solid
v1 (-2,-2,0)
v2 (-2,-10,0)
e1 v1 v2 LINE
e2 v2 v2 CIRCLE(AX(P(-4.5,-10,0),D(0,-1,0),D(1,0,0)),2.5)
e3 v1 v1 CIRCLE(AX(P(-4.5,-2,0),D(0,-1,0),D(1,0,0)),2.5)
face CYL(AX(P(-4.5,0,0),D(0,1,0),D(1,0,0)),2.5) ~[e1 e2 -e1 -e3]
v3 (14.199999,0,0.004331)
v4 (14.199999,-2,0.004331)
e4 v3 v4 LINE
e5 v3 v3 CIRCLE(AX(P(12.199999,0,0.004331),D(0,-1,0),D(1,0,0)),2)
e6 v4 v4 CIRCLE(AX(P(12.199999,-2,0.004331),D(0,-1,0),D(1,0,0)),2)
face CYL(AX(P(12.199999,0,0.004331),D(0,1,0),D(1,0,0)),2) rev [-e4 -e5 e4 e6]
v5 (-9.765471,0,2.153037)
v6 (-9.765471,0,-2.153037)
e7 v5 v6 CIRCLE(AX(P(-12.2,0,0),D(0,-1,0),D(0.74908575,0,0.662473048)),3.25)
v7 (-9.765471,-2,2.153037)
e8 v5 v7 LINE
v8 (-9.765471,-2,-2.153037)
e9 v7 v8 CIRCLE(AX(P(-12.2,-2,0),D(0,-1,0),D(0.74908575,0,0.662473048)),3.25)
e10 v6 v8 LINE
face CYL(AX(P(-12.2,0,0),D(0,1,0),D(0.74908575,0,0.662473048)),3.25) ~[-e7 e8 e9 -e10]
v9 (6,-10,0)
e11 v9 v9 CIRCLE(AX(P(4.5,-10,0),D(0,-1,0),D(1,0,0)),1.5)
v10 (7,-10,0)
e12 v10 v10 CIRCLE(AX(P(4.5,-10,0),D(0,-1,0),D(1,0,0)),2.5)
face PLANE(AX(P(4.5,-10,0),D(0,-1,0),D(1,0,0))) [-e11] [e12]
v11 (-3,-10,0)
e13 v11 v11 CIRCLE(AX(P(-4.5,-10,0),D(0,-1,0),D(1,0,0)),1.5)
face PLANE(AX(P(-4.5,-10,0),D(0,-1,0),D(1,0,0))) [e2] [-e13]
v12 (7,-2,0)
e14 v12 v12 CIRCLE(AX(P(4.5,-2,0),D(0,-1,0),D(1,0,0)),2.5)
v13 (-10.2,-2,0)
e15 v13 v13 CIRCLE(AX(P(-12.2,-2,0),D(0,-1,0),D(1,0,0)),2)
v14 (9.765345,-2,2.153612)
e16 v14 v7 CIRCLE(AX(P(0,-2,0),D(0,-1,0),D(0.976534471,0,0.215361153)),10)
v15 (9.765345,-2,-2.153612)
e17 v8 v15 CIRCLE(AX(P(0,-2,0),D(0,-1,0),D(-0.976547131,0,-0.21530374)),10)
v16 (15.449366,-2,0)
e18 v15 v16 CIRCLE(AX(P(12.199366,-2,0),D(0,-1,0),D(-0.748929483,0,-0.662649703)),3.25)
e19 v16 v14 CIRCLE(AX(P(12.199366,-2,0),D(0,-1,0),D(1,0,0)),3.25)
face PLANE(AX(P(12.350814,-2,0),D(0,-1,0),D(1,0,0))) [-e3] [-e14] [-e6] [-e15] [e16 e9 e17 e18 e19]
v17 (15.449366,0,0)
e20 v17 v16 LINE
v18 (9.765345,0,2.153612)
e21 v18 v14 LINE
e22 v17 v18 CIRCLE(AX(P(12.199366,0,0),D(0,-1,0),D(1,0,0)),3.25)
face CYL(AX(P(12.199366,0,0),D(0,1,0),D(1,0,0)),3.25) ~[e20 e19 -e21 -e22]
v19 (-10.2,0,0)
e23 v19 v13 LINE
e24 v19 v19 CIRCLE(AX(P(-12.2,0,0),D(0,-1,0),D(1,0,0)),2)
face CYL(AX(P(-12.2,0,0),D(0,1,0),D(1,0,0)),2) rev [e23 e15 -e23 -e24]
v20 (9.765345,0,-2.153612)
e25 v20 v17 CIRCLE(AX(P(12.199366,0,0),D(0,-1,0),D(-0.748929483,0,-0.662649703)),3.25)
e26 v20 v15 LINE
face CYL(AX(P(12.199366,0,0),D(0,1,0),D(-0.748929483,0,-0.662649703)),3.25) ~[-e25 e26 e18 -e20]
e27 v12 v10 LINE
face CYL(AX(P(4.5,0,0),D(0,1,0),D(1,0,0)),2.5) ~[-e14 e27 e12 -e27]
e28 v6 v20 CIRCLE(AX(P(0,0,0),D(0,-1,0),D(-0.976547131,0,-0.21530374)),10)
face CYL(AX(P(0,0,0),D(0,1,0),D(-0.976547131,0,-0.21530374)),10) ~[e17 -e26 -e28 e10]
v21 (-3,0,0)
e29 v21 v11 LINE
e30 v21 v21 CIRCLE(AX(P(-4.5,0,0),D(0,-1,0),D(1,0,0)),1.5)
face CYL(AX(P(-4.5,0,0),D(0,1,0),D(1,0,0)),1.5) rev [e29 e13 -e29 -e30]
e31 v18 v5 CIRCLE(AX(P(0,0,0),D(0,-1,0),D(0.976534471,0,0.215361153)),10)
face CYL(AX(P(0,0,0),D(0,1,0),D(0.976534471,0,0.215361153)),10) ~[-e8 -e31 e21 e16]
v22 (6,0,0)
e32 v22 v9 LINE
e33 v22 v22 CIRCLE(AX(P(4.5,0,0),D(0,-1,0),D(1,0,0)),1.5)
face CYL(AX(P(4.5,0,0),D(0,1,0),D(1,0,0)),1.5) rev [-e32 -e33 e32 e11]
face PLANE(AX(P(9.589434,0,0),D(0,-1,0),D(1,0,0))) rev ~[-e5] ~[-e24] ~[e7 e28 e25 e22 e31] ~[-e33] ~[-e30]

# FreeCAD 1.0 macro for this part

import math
import FreeCAD as App
import Part
import Sketcher

doc = App.newDocument("Part")
body = doc.addObject("PartDesign::Body", "Body")
body.AllowCompound = True

# Sketch on XZ plane
sketch1 = doc.addObject("Sketcher::SketchObject", "Sketch")
body.addObject(sketch1)
sketch1.AttachmentSupport = (doc.XZ_Plane, [""])
sketch1.MapMode = "FlatFace"
sketch1.addGeometry(Part.ArcOfCircle(Part.Circle(App.Vector(12.2, 0, 0), App.Vector(0, 0, 1), 3.2), math.radians(138), math.radians(222)), False)
sketch1.addGeometry(Part.ArcOfCircle(Part.Circle(App.Vector(0, 0, 0), App.Vector(0, 0, 1), 10), math.radians(12), math.radians(168)), False)
sketch1.addGeometry(Part.ArcOfCircle(Part.Circle(App.Vector(-12.2, 0, 0), App.Vector(0, 0, 1), 3.2), math.radians(0), math.radians(41)), False)
sketch1.addGeometry(Part.ArcOfCircle(Part.Circle(App.Vector(-12.2, 0, 0), App.Vector(0, 0, 1), 3.2), math.radians(-41), math.radians(0)), False)
sketch1.addGeometry(Part.ArcOfCircle(Part.Circle(App.Vector(0, 0, 0), App.Vector(0, 0, 1), 10), math.radians(-168), math.radians(-12)), False)
sketch1.addGeometry(Part.Circle(App.Vector(-4.5, 0, 0), App.Vector(0, 0, 1), 2.5), False)
sketch1.addGeometry(Part.Circle(App.Vector(4.5, 0, 0), App.Vector(0, 0, 1), 2.5), False)
sketch1.addConstraint(Sketcher.Constraint("Coincident", 0, 1, 1, 1))
sketch1.addConstraint(Sketcher.Constraint("Coincident", 1, 2, 2, 2))
sketch1.addConstraint(Sketcher.Constraint("Tangent", 2, 1, 3, 2))
sketch1.addConstraint(Sketcher.Constraint("Coincident", 3, 1, 4, 1))
sketch1.addConstraint(Sketcher.Constraint("Coincident", 4, 2, 0, 2))
sketch1.addConstraint(Sketcher.Constraint("Coincident", 1, 3, -1, 1))
sketch1.addConstraint(Sketcher.Constraint("Coincident", 4, 3, -1, 1))
sketch1.addConstraint(Sketcher.Constraint("Equal", 0, 2))
sketch1.addConstraint(Sketcher.Constraint("Equal", 2, 3))
sketch1.addConstraint(Sketcher.Constraint("Equal", 1, 4))
sketch1.addConstraint(Sketcher.Constraint("Equal", 5, 6))
sketch1.addConstraint(Sketcher.Constraint("Symmetric", 5, 3, 6, 3, -1, 1))
sketch1.addConstraint(Sketcher.Constraint("PointOnObject", 0, 3, -1))
sketch1.addConstraint(Sketcher.Constraint("PointOnObject", 2, 3, -1))
sketch1.addConstraint(Sketcher.Constraint("PointOnObject", 5, 3, -1))
sketch1.addConstraint(Sketcher.Constraint("PointOnObject", 2, 1, -1))
sketch1.addConstraint(Sketcher.Constraint("Diameter", 5, 5.0))
sketch1.addConstraint(Sketcher.Constraint("Radius", 1, 10.0))
sketch1.addConstraint(Sketcher.Constraint("Radius", 0, 3.25))
sketch1.addConstraint(Sketcher.Constraint("DistanceX", 5, 3, 6, 3, 9.0))
sketch1.addConstraint(Sketcher.Constraint("DistanceX", 2, 3, -1, 1, 12.2))
sketch1.addConstraint(Sketcher.Constraint("DistanceY", -1, 1, 0, 1, 2.153612))
pad1 = doc.addObject("PartDesign::Pad", "Pad")
body.addObject(pad1)
pad1.Profile = sketch1
pad1.Length = 2

# Sketch on XZ plane
sketch2 = doc.addObject("Sketcher::SketchObject", "Sketch001")
body.addObject(sketch2)
sketch2.AttachmentSupport = (doc.XZ_Plane, [""])
sketch2.MapMode = "FlatFace"
sketch2.addGeometry(Part.Circle(App.Vector(-4.5, 0, 0), App.Vector(0, 0, 1), 2.5), False)
sketch2.addGeometry(Part.Circle(App.Vector(-4.5, 0, 0), App.Vector(0, 0, 1), 1.5), False)
sketch2.addGeometry(Part.Circle(App.Vector(4.5, 0, 0), App.Vector(0, 0, 1), 2.5), False)
sketch2.addGeometry(Part.Circle(App.Vector(4.5, 0, 0), App.Vector(0, 0, 1), 1.5), False)
sketch2.addConstraint(Sketcher.Constraint("Coincident", 1, 3, 0, 3))
sketch2.addConstraint(Sketcher.Constraint("Coincident", 3, 3, 2, 3))
sketch2.addConstraint(Sketcher.Constraint("Equal", 0, 2))
sketch2.addConstraint(Sketcher.Constraint("Equal", 1, 3))
sketch2.addConstraint(Sketcher.Constraint("Symmetric", 0, 3, 2, 3, -1, 1))
sketch2.addConstraint(Sketcher.Constraint("PointOnObject", 0, 3, -1))
sketch2.addConstraint(Sketcher.Constraint("Diameter", 0, 5.0))
sketch2.addConstraint(Sketcher.Constraint("Diameter", 1, 3.0))
sketch2.addConstraint(Sketcher.Constraint("DistanceX", 0, 3, 2, 3, 9.0))
pad2 = doc.addObject("PartDesign::Pad", "Pad001")
body.addObject(pad2)
pad2.Profile = sketch2
pad2.Length = 10

# Sketch on XZ plane
sketch3 = doc.addObject("Sketcher::SketchObject", "Sketch002")
body.addObject(sketch3)
sketch3.AttachmentSupport = (doc.XZ_Plane, [""])
sketch3.MapMode = "FlatFace"
sketch3.addGeometry(Part.ArcOfCircle(Part.Circle(App.Vector(12.2, 0, 0), App.Vector(0, 0, 1), 3.2), math.radians(138), math.radians(222)), False)
sketch3.addGeometry(Part.ArcOfCircle(Part.Circle(App.Vector(0, 0, 0), App.Vector(0, 0, 1), 10), math.radians(12), math.radians(168)), False)
sketch3.addGeometry(Part.ArcOfCircle(Part.Circle(App.Vector(-12.2, 0, 0), App.Vector(0, 0, 1), 3.2), math.radians(0), math.radians(41)), False)
sketch3.addGeometry(Part.ArcOfCircle(Part.Circle(App.Vector(-12.2, 0, 0), App.Vector(0, 0, 1), 3.2), math.radians(-41), math.radians(0)), False)
sketch3.addGeometry(Part.ArcOfCircle(Part.Circle(App.Vector(0, 0, 0), App.Vector(0, 0, 1), 10), math.radians(-168), math.radians(-12)), False)
sketch3.addGeometry(Part.Circle(App.Vector(-4.5, 0, 0), App.Vector(0, 0, 1), 2.5), False)
sketch3.addGeometry(Part.Circle(App.Vector(4.5, 0, 0), App.Vector(0, 0, 1), 2.5), False)
sketch3.addConstraint(Sketcher.Constraint("Coincident", 0, 1, 1, 1))
sketch3.addConstraint(Sketcher.Constraint("Coincident", 1, 2, 2, 2))
sketch3.addConstraint(Sketcher.Constraint("Tangent", 2, 1, 3, 2))
sketch3.addConstraint(Sketcher.Constraint("Coincident", 3, 1, 4, 1))
sketch3.addConstraint(Sketcher.Constraint("Coincident", 4, 2, 0, 2))
sketch3.addConstraint(Sketcher.Constraint("Coincident", 1, 3, -1, 1))
sketch3.addConstraint(Sketcher.Constraint("Coincident", 4, 3, -1, 1))
sketch3.addConstraint(Sketcher.Constraint("Equal", 0, 2))
sketch3.addConstraint(Sketcher.Constraint("Equal", 2, 3))
sketch3.addConstraint(Sketcher.Constraint("Equal", 1, 4))
sketch3.addConstraint(Sketcher.Constraint("Equal", 5, 6))
sketch3.addConstraint(Sketcher.Constraint("Symmetric", 5, 3, 6, 3, -1, 1))
sketch3.addConstraint(Sketcher.Constraint("PointOnObject", 0, 3, -1))
sketch3.addConstraint(Sketcher.Constraint("PointOnObject", 2, 3, -1))
sketch3.addConstraint(Sketcher.Constraint("PointOnObject", 5, 3, -1))
sketch3.addConstraint(Sketcher.Constraint("PointOnObject", 2, 1, -1))
sketch3.addConstraint(Sketcher.Constraint("Diameter", 5, 5.0))
sketch3.addConstraint(Sketcher.Constraint("Radius", 1, 10.0))
sketch3.addConstraint(Sketcher.Constraint("Radius", 0, 3.25))
sketch3.addConstraint(Sketcher.Constraint("DistanceX", 5, 3, 6, 3, 9.0))
sketch3.addConstraint(Sketcher.Constraint("DistanceX", 2, 3, -1, 1, 12.2))
sketch3.addConstraint(Sketcher.Constraint("DistanceY", -1, 1, 0, 1, 2.153612))
pad3 = doc.addObject("PartDesign::Pad", "Pad002")
body.addObject(pad3)
pad3.Profile = sketch3
pad3.Length = 2

# Sketch on XZ plane
sketch4 = doc.addObject("Sketcher::SketchObject", "Sketch003")
body.addObject(sketch4)
sketch4.AttachmentSupport = (doc.XZ_Plane, [""])
sketch4.MapMode = "FlatFace"
sketch4.addGeometry(Part.ArcOfCircle(Part.Circle(App.Vector(0, 0, 0), App.Vector(0, 0, 1), 10), math.radians(0), math.radians(12.44)), False)
sketch4.addGeometry(Part.ArcOfCircle(Part.Circle(App.Vector(0, 0, 0), App.Vector(0, 0, 1), 10), math.radians(-12.44), math.radians(0)), False)
sketch4.addGeometry(Part.ArcOfCircle(Part.Circle(App.Vector(12.2, 0, 0), App.Vector(0, 0, 1), 3.2), math.radians(-138), math.radians(0)), False)
sketch4.addGeometry(Part.ArcOfCircle(Part.Circle(App.Vector(12.2, 0, 0), App.Vector(0, 0, 1), 3.2), math.radians(0), math.radians(138)), False)
sketch4.addGeometry(Part.Circle(App.Vector(12.2, 0, 0), App.Vector(0, 0, 1), 2), False)
sketch4.addGeometry(Part.ArcOfCircle(Part.Circle(App.Vector(0, 0, 0), App.Vector(0, 0, 1), 10), math.radians(168), math.radians(192)), False)
sketch4.addGeometry(Part.ArcOfCircle(Part.Circle(App.Vector(-12.2, 0, 0), App.Vector(0, 0, 1), 3.2), math.radians(41), math.radians(319)), False)
sketch4.addGeometry(Part.Circle(App.Vector(-12.2, 0, 0), App.Vector(0, 0, 1), 2), False)
sketch4.addConstraint(Sketcher.Constraint("Tangent", 0, 1, 1, 2))
sketch4.addConstraint(Sketcher.Constraint("Coincident", 1, 1, 2, 1))
sketch4.addConstraint(Sketcher.Constraint("Tangent", 2, 2, 3, 1))
sketch4.addConstraint(Sketcher.Constraint("Coincident", 3, 2, 0, 2))
sketch4.addConstraint(Sketcher.Constraint("Coincident", 5, 1, 6, 1))
sketch4.addConstraint(Sketcher.Constraint("Coincident", 6, 2, 5, 2))
sketch4.addConstraint(Sketcher.Constraint("Coincident", 0, 3, -1, 1))
sketch4.addConstraint(Sketcher.Constraint("Coincident", 5, 3, -1, 1))
sketch4.addConstraint(Sketcher.Constraint("Coincident", 7, 3, 6, 3))
sketch4.addConstraint(Sketcher.Constraint("Equal", 0, 1))
sketch4.addConstraint(Sketcher.Constraint("Equal", 2, 3))
sketch4.addConstraint(Sketcher.Constraint("Equal", 1, 5))
sketch4.addConstraint(Sketcher.Constraint("Equal", 3, 6))
sketch4.addConstraint(Sketcher.Constraint("Equal", 4, 7))
sketch4.addConstraint(Sketcher.Constraint("PointOnObject", 2, 3, -1))
sketch4.addConstraint(Sketcher.Constraint("PointOnObject", 6, 3, -1))
sketch4.addConstraint(Sketcher.Constraint("PointOnObject", 0, 1, -1))
sketch4.addConstraint(Sketcher.Constraint("PointOnObject", 2, 2, -1))
sketch4.addConstraint(Sketcher.Constraint("Diameter", 4, 4.0))
sketch4.addConstraint(Sketcher.Constraint("Radius", 0, 10.0))
sketch4.addConstraint(Sketcher.Constraint("Radius", 2, 3.25))
sketch4.addConstraint(Sketcher.Constraint("DistanceX", -1, 1, 4, 3, 12.199999))
sketch4.addConstraint(Sketcher.Constraint("DistanceX", 6, 3, -1, 1, 12.2))
sketch4.addConstraint(Sketcher.Constraint("DistanceY", -1, 1, 4, 3, 0.004331))
sketch4.addConstraint(Sketcher.Constraint("DistanceY", 1, 1, -1, 1, 2.153612))
pad4 = doc.addObject("PartDesign::Pad", "Pad003")
body.addObject(pad4)
pad4.Profile = sketch4
pad4.Length = 2

# Sketch on XZ plane
sketch5 = doc.addObject("Sketcher::SketchObject", "Sketch004")
body.addObject(sketch5)
sketch5.AttachmentSupport = (doc.XZ_Plane, [""])
sketch5.MapMode = "FlatFace"
sketch5.addGeometry(Part.ArcOfCircle(Part.Circle(App.Vector(0, 0, 0), App.Vector(0, 0, 1), 10), math.radians(-12.44), math.radians(0)), False)
sketch5.addGeometry(Part.ArcOfCircle(Part.Circle(App.Vector(0, 0, 0), App.Vector(0, 0, 1), 10), math.radians(0), math.radians(12.44)), False)
sketch5.addGeometry(Part.ArcOfCircle(Part.Circle(App.Vector(12.2, 0, 0), App.Vector(0, 0, 1), 3.2), math.radians(138), math.radians(222)), False)
sketch5.addGeometry(Part.ArcOfCircle(Part.Circle(App.Vector(-12.2, 0, 0), App.Vector(0, 0, 1), 3.2), math.radians(0), math.radians(41)), False)
sketch5.addGeometry(Part.ArcOfCircle(Part.Circle(App.Vector(0, 0, 0), App.Vector(0, 0, 1), 10), math.radians(168), math.radians(192)), False)
sketch5.addGeometry(Part.ArcOfCircle(Part.Circle(App.Vector(-12.2, 0, 0), App.Vector(0, 0, 1), 3.2), math.radians(-41), math.radians(0)), False)
sketch5.addConstraint(Sketcher.Constraint("Tangent", 0, 2, 1, 1))
sketch5.addConstraint(Sketcher.Constraint("Coincident", 1, 2, 2, 1))
sketch5.addConstraint(Sketcher.Constraint("Coincident", 2, 2, 0, 1))
sketch5.addConstraint(Sketcher.Constraint("Coincident", 3, 2, 4, 1))
sketch5.addConstraint(Sketcher.Constraint("Coincident", 4, 2, 5, 1))
sketch5.addConstraint(Sketcher.Constraint("Tangent", 5, 2, 3, 1))
sketch5.addConstraint(Sketcher.Constraint("Coincident", 0, 3, -1, 1))
sketch5.addConstraint(Sketcher.Constraint("Coincident", 4, 3, -1, 1))
sketch5.addConstraint(Sketcher.Constraint("Equal", 0, 1))
sketch5.addConstraint(Sketcher.Constraint("Equal", 2, 3))
sketch5.addConstraint(Sketcher.Constraint("Equal", 1, 4))
sketch5.addConstraint(Sketcher.Constraint("Equal", 3, 5))
sketch5.addConstraint(Sketcher.Constraint("PointOnObject", 2, 3, -1))
sketch5.addConstraint(Sketcher.Constraint("PointOnObject", 3, 3, -1))
sketch5.addConstraint(Sketcher.Constraint("PointOnObject", 0, 2, -1))
sketch5.addConstraint(Sketcher.Constraint("PointOnObject", 5, 2, -1))
sketch5.addConstraint(Sketcher.Constraint("Radius", 0, 10.0))
sketch5.addConstraint(Sketcher.Constraint("Radius", 2, 3.25))
sketch5.addConstraint(Sketcher.Constraint("DistanceX", 3, 3, -1, 1, 12.2))
sketch5.addConstraint(Sketcher.Constraint("DistanceY", -1, 1, 1, 2, 2.153612))
pad5 = doc.addObject("PartDesign::Pad", "Pad004")
body.addObject(pad5)
pad5.Profile = sketch5
pad5.Length = 2

doc.recompute()
